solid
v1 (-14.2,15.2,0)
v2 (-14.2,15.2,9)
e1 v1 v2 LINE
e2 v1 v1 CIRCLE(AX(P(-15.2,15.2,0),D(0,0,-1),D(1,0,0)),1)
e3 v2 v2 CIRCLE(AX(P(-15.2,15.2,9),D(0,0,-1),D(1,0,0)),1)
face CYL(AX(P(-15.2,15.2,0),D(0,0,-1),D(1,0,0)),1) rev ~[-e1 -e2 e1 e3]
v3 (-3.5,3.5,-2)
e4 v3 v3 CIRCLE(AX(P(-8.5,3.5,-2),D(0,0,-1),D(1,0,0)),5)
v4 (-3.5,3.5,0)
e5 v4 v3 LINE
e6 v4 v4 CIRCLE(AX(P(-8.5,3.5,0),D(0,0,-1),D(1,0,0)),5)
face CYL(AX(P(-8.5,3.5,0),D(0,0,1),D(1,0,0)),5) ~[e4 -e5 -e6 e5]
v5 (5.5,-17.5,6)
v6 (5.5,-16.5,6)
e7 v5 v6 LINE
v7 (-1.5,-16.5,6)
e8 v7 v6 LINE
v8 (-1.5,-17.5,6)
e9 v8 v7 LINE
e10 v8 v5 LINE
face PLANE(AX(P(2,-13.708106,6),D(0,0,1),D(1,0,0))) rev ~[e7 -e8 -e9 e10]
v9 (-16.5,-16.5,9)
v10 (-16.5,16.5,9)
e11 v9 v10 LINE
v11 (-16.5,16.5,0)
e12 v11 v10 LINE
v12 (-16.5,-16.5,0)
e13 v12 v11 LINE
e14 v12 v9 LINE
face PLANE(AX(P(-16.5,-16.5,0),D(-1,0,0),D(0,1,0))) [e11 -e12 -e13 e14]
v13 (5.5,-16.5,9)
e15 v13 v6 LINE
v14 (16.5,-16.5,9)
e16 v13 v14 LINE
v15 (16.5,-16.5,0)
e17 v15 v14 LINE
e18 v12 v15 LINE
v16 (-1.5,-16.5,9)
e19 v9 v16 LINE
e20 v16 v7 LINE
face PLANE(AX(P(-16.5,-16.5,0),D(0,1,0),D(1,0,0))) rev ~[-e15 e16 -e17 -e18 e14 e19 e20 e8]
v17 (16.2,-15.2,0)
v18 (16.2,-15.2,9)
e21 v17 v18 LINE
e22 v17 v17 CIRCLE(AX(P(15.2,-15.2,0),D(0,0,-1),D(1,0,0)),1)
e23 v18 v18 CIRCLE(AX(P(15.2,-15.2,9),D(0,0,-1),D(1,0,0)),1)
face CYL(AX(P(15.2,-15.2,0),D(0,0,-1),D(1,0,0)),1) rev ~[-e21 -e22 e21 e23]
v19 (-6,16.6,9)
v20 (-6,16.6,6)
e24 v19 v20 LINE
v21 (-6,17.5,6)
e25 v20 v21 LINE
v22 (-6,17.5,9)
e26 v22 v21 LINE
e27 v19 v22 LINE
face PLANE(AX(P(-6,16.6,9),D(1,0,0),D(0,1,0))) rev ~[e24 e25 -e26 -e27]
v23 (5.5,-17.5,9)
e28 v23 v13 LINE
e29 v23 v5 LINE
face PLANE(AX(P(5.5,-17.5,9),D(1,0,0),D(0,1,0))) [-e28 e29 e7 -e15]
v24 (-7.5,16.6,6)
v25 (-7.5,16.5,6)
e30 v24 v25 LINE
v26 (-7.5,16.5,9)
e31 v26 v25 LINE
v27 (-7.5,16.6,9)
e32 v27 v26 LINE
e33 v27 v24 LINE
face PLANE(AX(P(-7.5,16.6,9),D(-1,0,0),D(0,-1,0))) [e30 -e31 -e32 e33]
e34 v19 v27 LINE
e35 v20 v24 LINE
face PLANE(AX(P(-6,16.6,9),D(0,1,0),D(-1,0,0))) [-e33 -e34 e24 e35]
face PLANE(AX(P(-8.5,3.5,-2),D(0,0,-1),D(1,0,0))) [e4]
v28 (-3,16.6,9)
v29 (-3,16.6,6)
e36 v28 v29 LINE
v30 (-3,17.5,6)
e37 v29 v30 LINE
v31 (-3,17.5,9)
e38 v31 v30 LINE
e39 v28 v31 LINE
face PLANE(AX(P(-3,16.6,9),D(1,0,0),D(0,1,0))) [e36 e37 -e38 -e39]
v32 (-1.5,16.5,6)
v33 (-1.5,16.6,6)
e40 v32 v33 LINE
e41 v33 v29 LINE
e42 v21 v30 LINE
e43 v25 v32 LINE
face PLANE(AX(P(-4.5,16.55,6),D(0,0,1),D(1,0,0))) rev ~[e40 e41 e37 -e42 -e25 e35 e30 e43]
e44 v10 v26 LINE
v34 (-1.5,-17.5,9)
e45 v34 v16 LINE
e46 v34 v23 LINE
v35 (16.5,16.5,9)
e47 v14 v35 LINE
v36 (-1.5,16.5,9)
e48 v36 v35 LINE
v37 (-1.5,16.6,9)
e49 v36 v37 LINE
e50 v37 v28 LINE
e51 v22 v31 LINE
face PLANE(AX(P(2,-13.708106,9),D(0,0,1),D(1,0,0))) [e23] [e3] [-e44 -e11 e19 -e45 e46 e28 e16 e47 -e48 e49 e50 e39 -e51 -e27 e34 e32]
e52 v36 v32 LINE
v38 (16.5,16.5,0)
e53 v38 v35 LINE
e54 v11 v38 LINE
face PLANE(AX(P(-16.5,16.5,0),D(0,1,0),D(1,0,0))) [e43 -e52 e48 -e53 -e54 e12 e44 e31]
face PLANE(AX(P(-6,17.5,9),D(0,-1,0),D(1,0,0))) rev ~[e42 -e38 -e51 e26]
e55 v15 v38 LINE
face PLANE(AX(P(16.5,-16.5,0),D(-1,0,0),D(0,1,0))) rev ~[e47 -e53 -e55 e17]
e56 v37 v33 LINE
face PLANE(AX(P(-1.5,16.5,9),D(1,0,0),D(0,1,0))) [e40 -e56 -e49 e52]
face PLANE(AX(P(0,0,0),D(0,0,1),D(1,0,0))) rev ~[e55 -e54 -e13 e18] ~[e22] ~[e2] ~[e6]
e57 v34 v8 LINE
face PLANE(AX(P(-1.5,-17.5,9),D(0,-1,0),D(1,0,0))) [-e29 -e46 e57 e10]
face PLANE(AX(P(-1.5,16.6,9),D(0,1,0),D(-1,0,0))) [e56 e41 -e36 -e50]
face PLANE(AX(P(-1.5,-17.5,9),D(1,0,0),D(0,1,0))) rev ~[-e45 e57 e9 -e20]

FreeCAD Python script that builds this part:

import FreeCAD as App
import Part
import Sketcher
Q = App.Units.Quantity


def add_polygon(sketch, points):
    """Adds a closed chain of lines whose ends are joined by coincident constraints."""
    first, n = sketch.GeometryCount, len(points)
    for a, b in zip(points, points[1:] + points[:1]):
        sketch.addGeometry(Part.LineSegment(App.Vector(*a, 0), App.Vector(*b, 0)), False)
    for i in range(n):
        sketch.addConstraint(Sketcher.Constraint("Coincident", first + i, 2, first + (i + 1) % n, 1))

doc = App.newDocument("Part")
body = doc.addObject("PartDesign::Body", "Body")

sketch1 = body.newObject("Sketcher::SketchObject", "Sketch")
sketch1.AttachmentSupport = (doc.getObject("XY_Plane"), [""])
sketch1.MapMode = "FlatFace"
add_polygon(sketch1, [(-16, 16), (-16, -16), (16, -16), (16, 16)])
sketch1.addConstraint(Sketcher.Constraint("Vertical", 0))
sketch1.addConstraint(Sketcher.Constraint("Horizontal", 1))
sketch1.addConstraint(Sketcher.Constraint("Vertical", 2))
sketch1.addConstraint(Sketcher.Constraint("Horizontal", 3))
sketch1.addConstraint(Sketcher.Constraint("Symmetric", 0, 2, 2, 2, -1, 1))
sketch1.addConstraint(Sketcher.Constraint("Equal", 3, 0))
sketch1.addConstraint(Sketcher.Constraint("DistanceX", 1, 1, 1, 2, Q("33 mm")))
pad1 = body.newObject("PartDesign::Pad", "Pad")
pad1.Profile = sketch1
pad1.Length = 9

sketch2 = body.newObject("Sketcher::SketchObject", "Sketch001")
sketch2.AttachmentSupport = (doc.getObject("XY_Plane"), [""])
sketch2.MapMode = "FlatFace"
sketch2.AttachmentOffset = App.Placement(App.Vector(0, 0, 9), App.Rotation())
add_polygon(sketch2, [(-7.5, 16.6), (-7.5, 16.5), (-1.5, 16.5), (-1.5, 16.6), (-3, 16.6), (-3, 17.5), (-6, 17.5), (-6, 16.6)])
add_polygon(sketch2, [(-1.5, -9.92), (-1.5, -17.5), (5.5, -17.5), (5.5, -9.92)])
sketch2.addConstraint(Sketcher.Constraint("Vertical", 0))
sketch2.addConstraint(Sketcher.Constraint("Horizontal", 1))
sketch2.addConstraint(Sketcher.Constraint("Vertical", 2))
sketch2.addConstraint(Sketcher.Constraint("Horizontal", 3))
sketch2.addConstraint(Sketcher.Constraint("Vertical", 4))
sketch2.addConstraint(Sketcher.Constraint("Horizontal", 5))
sketch2.addConstraint(Sketcher.Constraint("Vertical", 6))
sketch2.addConstraint(Sketcher.Constraint("Horizontal", 7))
sketch2.addConstraint(Sketcher.Constraint("Vertical", 8))
sketch2.addConstraint(Sketcher.Constraint("Horizontal", 9))
sketch2.addConstraint(Sketcher.Constraint("Vertical", 10))
sketch2.addConstraint(Sketcher.Constraint("Horizontal", 11))
sketch2.addConstraint(Sketcher.Constraint("Horizontal", 3, 2, 6, 2))
sketch2.addConstraint(Sketcher.Constraint("Vertical", 2, 2, 8, 2))
sketch2.addConstraint(Sketcher.Constraint("Equal", 3, 7))
sketch2.addConstraint(Sketcher.Constraint("DistanceX", 1, 1, 1, 2, Q("6 mm")))
sketch2.addConstraint(Sketcher.Constraint("DistanceX", 5, 2, 5, 1, Q("3 mm")))
sketch2.addConstraint(Sketcher.Constraint("DistanceX", 9, 1, 9, 2, Q("7 mm")))
sketch2.addConstraint(Sketcher.Constraint("DistanceY", 0, 2, 0, 1, Q("0.1 mm")))
sketch2.addConstraint(Sketcher.Constraint("DistanceY", 4, 1, 4, 2, Q("0.9 mm")))
sketch2.addConstraint(Sketcher.Constraint("DistanceX", 3, 2, -1, 1, Q("3 mm")))
sketch2.addConstraint(Sketcher.Constraint("DistanceY", 8, 2, 1, 2, Q("34 mm")))
sketch2.addConstraint(Sketcher.Constraint("DistanceY", -1, 1, 0, 2, Q("16.5 mm")))
sketch2.addConstraint(Sketcher.Constraint("DistanceY", 8, 2, 8, 1, Q("7.583788 mm")))
pad2 = body.newObject("PartDesign::Pad", "Pad001")
pad2.Profile = sketch2
pad2.Length = 3
pad2.Reversed = True

sketch3 = body.newObject("Sketcher::SketchObject", "Sketch002")
sketch3.AttachmentSupport = (doc.getObject("XY_Plane"), [""])
sketch3.MapMode = "FlatFace"
sketch3.addGeometry(Part.Circle(App.Vector(-8, 4, 0), App.Vector(0, 0, 1), 5), False)
sketch3.addConstraint(Sketcher.Constraint("Diameter", 0, Q("10 mm")))
sketch3.addConstraint(Sketcher.Constraint("DistanceX", 0, 3, -1, 1, Q("8.5 mm")))
sketch3.addConstraint(Sketcher.Constraint("DistanceY", -1, 1, 0, 3, Q("3.5 mm")))
pad3 = body.newObject("PartDesign::Pad", "Pad002")
pad3.Profile = sketch3
pad3.Length = 2
pad3.Reversed = True

sketch4 = body.newObject("Sketcher::SketchObject", "Sketch003")
sketch4.AttachmentSupport = (doc.getObject("XY_Plane"), [""])
sketch4.MapMode = "FlatFace"
sketch4.addGeometry(Part.Circle(App.Vector(-15.2, 15.2, 0), App.Vector(0, 0, 1), 1), False)
sketch4.addGeometry(Part.Circle(App.Vector(15.2, -15.2, 0), App.Vector(0, 0, 1), 1), False)
sketch4.addConstraint(Sketcher.Constraint("Equal", 0, 1))
sketch4.addConstraint(Sketcher.Constraint("Symmetric", 0, 3, 1, 3, -1, 1))
sketch4.addConstraint(Sketcher.Constraint("Diameter", 0, Q("2 mm")))
sketch4.addConstraint(Sketcher.Constraint("DistanceX", 0, 3, -1, 1, Q("15.2 mm")))
sketch4.addConstraint(Sketcher.Constraint("DistanceY", -1, 1, 0, 3, Q("15.2 mm")))
pocket1 = body.newObject("PartDesign::Pocket", "Pocket")
pocket1.Profile = sketch4
pocket1.Length = 25
pocket1.Reversed = True

doc.recompute()
